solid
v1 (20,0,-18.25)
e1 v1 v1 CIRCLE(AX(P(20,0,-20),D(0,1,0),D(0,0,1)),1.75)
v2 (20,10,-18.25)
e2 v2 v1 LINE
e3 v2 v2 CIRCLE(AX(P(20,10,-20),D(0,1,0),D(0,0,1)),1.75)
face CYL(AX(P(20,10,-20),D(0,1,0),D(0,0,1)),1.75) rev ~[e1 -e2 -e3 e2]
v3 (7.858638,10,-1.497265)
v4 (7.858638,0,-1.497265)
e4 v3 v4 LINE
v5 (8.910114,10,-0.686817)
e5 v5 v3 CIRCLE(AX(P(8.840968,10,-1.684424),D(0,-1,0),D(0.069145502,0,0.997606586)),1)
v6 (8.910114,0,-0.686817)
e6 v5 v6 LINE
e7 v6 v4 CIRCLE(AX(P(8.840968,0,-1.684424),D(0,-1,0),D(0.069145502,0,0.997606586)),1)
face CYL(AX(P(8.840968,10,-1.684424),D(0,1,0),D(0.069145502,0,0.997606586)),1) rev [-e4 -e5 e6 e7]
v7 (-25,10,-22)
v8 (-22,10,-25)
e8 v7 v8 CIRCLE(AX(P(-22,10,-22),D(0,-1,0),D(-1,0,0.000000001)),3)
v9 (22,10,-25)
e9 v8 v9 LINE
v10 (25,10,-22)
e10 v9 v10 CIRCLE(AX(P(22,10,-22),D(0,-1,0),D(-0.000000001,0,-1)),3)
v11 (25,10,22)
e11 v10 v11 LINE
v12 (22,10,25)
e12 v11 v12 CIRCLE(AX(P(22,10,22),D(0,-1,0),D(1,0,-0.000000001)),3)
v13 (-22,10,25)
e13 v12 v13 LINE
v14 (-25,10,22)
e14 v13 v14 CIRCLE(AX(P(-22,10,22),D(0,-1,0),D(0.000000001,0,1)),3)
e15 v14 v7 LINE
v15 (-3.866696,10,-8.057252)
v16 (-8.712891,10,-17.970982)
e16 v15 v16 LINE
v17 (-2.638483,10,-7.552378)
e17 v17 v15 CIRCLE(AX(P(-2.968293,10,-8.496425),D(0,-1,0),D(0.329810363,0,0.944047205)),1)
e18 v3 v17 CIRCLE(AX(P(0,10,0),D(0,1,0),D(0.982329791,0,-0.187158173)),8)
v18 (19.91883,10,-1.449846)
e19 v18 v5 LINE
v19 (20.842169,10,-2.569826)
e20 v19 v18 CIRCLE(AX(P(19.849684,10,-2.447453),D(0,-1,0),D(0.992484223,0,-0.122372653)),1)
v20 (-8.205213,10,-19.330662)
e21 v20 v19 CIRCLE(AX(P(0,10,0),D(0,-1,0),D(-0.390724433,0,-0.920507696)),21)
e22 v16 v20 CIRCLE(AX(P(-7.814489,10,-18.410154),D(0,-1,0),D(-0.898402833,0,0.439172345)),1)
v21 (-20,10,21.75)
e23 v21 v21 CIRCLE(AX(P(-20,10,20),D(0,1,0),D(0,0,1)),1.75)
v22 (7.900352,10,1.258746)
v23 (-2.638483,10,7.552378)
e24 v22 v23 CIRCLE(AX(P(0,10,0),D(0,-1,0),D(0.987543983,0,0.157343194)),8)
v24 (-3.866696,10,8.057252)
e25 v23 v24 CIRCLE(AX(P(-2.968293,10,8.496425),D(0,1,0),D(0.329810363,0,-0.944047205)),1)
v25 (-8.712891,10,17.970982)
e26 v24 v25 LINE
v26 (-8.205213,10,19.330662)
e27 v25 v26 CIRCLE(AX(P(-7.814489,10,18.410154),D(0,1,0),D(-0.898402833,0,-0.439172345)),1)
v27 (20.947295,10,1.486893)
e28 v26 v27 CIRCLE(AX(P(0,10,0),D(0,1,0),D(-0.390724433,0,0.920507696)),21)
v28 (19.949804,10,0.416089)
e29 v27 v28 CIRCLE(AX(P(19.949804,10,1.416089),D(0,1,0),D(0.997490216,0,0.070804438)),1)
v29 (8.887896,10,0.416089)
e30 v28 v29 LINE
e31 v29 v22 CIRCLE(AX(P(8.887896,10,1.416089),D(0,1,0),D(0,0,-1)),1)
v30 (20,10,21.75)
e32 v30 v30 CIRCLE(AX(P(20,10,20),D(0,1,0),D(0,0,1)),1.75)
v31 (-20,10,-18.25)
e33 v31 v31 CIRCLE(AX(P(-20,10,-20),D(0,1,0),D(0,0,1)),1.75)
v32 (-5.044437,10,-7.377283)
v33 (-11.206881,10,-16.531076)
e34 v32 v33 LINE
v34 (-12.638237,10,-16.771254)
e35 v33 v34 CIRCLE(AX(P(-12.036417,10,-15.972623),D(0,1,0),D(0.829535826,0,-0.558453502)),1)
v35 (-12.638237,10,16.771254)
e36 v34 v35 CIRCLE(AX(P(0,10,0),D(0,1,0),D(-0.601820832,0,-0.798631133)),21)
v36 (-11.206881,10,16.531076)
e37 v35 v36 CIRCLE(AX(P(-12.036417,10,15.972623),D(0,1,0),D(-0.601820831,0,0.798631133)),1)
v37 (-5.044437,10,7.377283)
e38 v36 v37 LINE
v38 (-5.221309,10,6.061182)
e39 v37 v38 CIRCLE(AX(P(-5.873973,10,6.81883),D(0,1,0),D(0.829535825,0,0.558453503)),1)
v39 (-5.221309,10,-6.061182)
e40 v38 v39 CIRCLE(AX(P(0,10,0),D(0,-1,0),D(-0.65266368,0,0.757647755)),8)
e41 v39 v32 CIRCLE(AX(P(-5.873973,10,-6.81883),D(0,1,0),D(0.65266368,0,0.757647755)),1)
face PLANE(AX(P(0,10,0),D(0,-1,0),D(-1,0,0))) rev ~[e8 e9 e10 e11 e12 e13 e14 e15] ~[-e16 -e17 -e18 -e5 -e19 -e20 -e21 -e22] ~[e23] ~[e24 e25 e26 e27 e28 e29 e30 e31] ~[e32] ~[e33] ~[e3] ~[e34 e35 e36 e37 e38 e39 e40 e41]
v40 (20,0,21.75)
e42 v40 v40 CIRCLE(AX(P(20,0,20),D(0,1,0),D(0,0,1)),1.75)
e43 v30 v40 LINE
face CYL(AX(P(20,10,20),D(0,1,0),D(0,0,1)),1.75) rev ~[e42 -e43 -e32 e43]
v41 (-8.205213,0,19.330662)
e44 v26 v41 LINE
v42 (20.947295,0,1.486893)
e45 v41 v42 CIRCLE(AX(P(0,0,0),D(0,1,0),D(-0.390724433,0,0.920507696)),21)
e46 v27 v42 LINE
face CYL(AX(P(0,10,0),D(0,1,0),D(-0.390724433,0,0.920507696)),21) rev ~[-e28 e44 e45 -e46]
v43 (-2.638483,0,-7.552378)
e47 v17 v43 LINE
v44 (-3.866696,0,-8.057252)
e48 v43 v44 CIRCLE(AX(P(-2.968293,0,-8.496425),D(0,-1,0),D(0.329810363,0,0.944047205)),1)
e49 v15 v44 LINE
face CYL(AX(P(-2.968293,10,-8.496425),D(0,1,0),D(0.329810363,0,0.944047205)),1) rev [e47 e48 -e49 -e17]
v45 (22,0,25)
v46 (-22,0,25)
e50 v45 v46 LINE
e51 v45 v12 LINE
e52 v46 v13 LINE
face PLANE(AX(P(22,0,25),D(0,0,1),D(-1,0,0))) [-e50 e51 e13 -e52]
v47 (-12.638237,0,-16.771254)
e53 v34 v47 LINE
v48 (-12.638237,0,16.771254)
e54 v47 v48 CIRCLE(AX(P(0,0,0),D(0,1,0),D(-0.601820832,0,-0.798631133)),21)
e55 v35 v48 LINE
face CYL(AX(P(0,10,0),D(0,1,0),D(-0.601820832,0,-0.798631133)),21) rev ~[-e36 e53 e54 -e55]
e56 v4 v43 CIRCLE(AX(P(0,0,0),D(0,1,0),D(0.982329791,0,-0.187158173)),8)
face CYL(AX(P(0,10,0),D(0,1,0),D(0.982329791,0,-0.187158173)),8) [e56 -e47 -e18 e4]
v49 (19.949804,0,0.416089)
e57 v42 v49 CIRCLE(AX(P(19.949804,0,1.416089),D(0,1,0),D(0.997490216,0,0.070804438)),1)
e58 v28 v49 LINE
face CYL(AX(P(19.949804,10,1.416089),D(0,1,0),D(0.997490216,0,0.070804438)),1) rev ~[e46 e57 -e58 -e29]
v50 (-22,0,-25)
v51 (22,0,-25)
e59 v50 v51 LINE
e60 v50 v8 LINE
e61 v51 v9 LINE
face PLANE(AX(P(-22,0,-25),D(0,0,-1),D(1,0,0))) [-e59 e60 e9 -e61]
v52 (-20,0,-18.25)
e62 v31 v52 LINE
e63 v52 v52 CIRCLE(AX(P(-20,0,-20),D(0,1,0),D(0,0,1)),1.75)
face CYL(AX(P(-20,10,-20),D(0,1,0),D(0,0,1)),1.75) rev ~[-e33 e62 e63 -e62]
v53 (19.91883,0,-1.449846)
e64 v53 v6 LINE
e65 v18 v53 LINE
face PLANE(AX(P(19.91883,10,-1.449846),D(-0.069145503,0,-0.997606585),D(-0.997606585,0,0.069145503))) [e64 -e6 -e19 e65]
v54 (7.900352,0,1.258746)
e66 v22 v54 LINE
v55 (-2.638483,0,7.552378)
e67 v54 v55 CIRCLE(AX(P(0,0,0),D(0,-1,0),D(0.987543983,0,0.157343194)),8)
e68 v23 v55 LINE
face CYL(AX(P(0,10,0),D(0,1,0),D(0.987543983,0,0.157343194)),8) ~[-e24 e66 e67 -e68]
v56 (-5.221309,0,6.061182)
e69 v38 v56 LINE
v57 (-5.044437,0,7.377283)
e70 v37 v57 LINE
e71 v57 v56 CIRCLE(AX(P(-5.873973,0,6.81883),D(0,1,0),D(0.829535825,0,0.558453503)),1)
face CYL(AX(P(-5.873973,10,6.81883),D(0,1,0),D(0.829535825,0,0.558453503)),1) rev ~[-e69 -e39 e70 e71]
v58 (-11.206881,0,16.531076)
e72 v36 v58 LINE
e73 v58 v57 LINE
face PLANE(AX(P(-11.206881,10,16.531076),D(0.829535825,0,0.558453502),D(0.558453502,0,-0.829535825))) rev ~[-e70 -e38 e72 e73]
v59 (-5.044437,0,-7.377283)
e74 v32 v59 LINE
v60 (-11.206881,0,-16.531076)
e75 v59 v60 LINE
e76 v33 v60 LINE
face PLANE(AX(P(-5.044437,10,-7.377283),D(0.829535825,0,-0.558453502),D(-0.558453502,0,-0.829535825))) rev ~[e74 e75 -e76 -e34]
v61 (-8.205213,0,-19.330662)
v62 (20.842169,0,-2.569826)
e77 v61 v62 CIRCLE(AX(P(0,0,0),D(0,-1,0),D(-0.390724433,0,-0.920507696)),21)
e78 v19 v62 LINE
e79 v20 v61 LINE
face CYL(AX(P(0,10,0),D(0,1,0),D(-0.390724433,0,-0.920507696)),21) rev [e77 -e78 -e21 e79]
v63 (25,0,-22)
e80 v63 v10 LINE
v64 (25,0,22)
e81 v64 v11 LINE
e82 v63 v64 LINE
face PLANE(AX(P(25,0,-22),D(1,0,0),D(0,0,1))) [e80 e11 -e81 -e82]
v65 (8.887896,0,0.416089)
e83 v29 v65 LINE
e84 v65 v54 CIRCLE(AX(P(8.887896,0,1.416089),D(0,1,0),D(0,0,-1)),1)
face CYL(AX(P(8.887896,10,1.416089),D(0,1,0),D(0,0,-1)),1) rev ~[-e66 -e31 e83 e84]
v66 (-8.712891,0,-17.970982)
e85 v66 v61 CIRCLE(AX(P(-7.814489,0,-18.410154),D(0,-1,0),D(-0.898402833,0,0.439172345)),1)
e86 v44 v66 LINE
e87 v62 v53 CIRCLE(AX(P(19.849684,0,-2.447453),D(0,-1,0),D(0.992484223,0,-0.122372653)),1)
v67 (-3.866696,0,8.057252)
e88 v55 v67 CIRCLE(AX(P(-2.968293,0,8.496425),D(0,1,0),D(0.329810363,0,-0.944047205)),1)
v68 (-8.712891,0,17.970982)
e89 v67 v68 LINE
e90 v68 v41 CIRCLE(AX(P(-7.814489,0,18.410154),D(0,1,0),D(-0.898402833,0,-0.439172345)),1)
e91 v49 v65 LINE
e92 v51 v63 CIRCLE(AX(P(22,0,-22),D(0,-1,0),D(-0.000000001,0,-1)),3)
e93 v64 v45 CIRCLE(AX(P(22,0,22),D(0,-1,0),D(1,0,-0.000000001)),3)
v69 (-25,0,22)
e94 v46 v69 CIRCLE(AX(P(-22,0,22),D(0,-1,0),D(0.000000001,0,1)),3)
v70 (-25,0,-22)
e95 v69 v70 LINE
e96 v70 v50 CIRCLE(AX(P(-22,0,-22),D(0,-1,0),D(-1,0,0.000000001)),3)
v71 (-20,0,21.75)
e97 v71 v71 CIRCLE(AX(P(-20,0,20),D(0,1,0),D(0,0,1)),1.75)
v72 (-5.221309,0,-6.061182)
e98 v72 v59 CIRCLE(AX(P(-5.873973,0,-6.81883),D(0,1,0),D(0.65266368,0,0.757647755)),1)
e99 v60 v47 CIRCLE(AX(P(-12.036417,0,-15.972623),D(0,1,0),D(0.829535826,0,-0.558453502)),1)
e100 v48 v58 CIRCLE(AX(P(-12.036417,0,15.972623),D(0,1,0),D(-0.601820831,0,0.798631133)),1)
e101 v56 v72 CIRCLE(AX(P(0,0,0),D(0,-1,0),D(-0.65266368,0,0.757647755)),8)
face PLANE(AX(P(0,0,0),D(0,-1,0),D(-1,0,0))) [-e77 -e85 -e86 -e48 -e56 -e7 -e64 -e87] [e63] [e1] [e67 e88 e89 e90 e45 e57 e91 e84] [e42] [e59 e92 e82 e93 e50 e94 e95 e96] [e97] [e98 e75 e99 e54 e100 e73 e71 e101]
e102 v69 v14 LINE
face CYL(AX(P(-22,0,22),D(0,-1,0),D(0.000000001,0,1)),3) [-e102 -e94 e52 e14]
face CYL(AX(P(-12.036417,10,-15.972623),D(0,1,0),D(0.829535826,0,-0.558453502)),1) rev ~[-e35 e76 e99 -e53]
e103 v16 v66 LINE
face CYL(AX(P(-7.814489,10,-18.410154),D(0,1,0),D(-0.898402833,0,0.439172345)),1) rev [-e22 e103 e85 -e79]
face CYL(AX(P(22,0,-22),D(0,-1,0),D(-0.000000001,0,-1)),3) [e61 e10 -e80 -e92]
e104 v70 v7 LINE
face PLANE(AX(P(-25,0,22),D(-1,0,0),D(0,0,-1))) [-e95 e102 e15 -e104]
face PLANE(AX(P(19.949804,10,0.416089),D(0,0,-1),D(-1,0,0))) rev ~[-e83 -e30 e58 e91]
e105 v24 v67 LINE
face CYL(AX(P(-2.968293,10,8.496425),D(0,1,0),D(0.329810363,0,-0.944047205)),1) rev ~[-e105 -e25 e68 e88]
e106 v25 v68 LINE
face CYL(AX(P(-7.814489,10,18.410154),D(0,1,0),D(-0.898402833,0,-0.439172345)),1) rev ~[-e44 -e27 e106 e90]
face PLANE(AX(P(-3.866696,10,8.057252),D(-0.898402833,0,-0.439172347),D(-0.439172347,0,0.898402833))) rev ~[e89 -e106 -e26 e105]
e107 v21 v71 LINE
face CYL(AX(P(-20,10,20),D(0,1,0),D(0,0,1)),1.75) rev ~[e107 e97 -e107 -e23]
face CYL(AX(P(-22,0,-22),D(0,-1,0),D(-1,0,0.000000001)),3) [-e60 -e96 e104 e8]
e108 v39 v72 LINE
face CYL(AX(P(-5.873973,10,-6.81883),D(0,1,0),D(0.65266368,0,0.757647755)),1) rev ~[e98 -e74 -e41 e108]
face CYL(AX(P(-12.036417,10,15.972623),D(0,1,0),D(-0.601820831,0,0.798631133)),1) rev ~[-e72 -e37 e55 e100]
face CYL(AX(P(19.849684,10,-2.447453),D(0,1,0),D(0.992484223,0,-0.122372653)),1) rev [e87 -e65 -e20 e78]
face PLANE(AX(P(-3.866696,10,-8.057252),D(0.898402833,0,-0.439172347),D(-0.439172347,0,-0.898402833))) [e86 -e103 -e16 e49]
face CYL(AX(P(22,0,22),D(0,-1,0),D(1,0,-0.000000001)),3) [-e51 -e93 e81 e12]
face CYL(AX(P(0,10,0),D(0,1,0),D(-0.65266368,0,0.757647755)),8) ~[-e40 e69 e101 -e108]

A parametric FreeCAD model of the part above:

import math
import FreeCAD as App
import Part
import Sketcher

V = App.Vector
Q = App.Units.Quantity

doc = App.newDocument("Part")
body = doc.addObject("PartDesign::Body", "Body")

sketch1 = body.newObject("Sketcher::SketchObject", "Sketch")
sketch1.AttachmentSupport = (doc.getObject("XZ_Plane"), [""])
sketch1.MapMode = "FlatFace"
sketch1.addGeometry([
    Part.LineSegment(V(-22, 25, 0), V(22, 25, 0)),
    Part.ArcOfCircle(Part.Circle(V(22, 22, 0), V(0, 0, 1), 3), math.radians(0), math.radians(90)),
    Part.LineSegment(V(25, 22, 0), V(25, -22, 0)),
    Part.ArcOfCircle(Part.Circle(V(22, -22, 0), V(0, 0, 1), 3), math.radians(-90), math.radians(0)),
    Part.LineSegment(V(22, -25, 0), V(-22, -25, 0)),
    Part.ArcOfCircle(Part.Circle(V(-22, -22, 0), V(0, 0, 1), 3), math.radians(180), math.radians(270)),
    Part.LineSegment(V(-25, -22, 0), V(-25, 22, 0)),
    Part.ArcOfCircle(Part.Circle(V(-22, 22, 0), V(0, 0, 1), 3), math.radians(90), math.radians(180)),
], False)
sketch1.addConstraint([
    Sketcher.Constraint("Tangent", 0, 2, 1, 2),
    Sketcher.Constraint("Tangent", 1, 1, 2, 1),
    Sketcher.Constraint("Tangent", 2, 2, 3, 2),
    Sketcher.Constraint("Tangent", 3, 1, 4, 1),
    Sketcher.Constraint("Tangent", 4, 2, 5, 2),
    Sketcher.Constraint("Tangent", 5, 1, 6, 1),
    Sketcher.Constraint("Tangent", 6, 2, 7, 2),
    Sketcher.Constraint("Tangent", 7, 1, 0, 1),
    Sketcher.Constraint("Horizontal", 0),
    Sketcher.Constraint("Vertical", 2),
    Sketcher.Constraint("Horizontal", 4),
    Sketcher.Constraint("Vertical", 6),
    Sketcher.Constraint("Equal", 1, 3),
    Sketcher.Constraint("Equal", 3, 5),
    Sketcher.Constraint("Equal", 5, 7),
    Sketcher.Constraint("Symmetric", 1, 3, 5, 3, -1, 1),
    Sketcher.Constraint("Equal", 4, 2),
    Sketcher.Constraint("Radius", 1, Q("3 mm")),
    Sketcher.Constraint("DistanceX", 0, 1, 0, 2, Q("44 mm")),
])
pad1 = body.newObject("PartDesign::Pad", "Pad")
pad1.Profile = sketch1
pad1.Length = 10
pad1.Reversed = True

sketch2 = body.newObject("Sketcher::SketchObject", "Sketch001")
sketch2.AttachmentSupport = (doc.getObject("XZ_Plane"), [""])
sketch2.MapMode = "FlatFace"
sketch2.AttachmentOffset = App.Placement(V(0, 0, -10), App.Rotation())
sketch2.addGeometry([
    Part.Circle(V(-20, -20, 0), V(0, 0, 1), 1.75),
    Part.Circle(V(20, -20, 0), V(0, 0, 1), 1.75),
    Part.Circle(V(20, 20, 0), V(0, 0, 1), 1.75),
    Part.Circle(V(-20, 20, 0), V(0, 0, 1), 1.75),
    Part.LineSegment(V(19.949804, 0.416089, 0), V(8.887896, 0.416089, 0)),
    Part.ArcOfCircle(Part.Circle(V(8.887896, 1.416089, 0), V(0, 0, 1), 1), math.radians(-170.947281), math.radians(-90)),
    Part.ArcOfCircle(Part.Circle(V(0, 0, 0), V(0, 0, 1), 8), math.radians(9.052719), math.radians(109.257266)),
    Part.ArcOfCircle(Part.Circle(V(-2.968293, 8.496425, 0), V(0, 0, 1), 1), math.radians(-153.948914), math.radians(-70.742734)),
    Part.LineSegment(V(-3.866696, 8.057252, 0), V(-8.712891, 17.970982, 0)),
    Part.ArcOfCircle(Part.Circle(V(-7.814489, 18.410154, 0), V(0, 0, 1), 1), math.radians(112.999583), math.radians(206.051085)),
    Part.ArcOfCircle(Part.Circle(V(0, 0, 0), V(0, 0, 1), 21), math.radians(4.060193), math.radians(112.999583)),
    Part.ArcOfCircle(Part.Circle(V(19.949804, 1.416089, 0), V(0, 0, 1), 1), math.radians(-90), math.radians(4.060193)),
    Part.LineSegment(V(8.910114, -0.686817, 0), V(19.91883, -1.449846, 0)),
    Part.ArcOfCircle(Part.Circle(V(19.849684, -2.447453, 0), V(0, 0, 1), 1), math.radians(-7.029055), math.radians(86.035091)),
    Part.ArcOfCircle(Part.Circle(V(0, 0, 0), V(0, 0, 1), 21), math.radians(-112.999583), math.radians(-7.029055)),
    Part.ArcOfCircle(Part.Circle(V(-7.814489, -18.410154, 0), V(0, 0, 1), 1), math.radians(153.948915), math.radians(247.000417)),
    Part.LineSegment(V(-8.712891, -17.970982, 0), V(-3.866696, -8.057252, 0)),
    Part.ArcOfCircle(Part.Circle(V(-2.968293, -8.496425, 0), V(0, 0, 1), 1), math.radians(70.742734), math.radians(153.948914)),
    Part.ArcOfCircle(Part.Circle(V(0, 0, 0), V(0, 0, 1), 8), math.radians(-109.257266), math.radians(-10.786985)),
    Part.ArcOfCircle(Part.Circle(V(8.840968, -1.684424, 0), V(0, 0, 1), 1), math.radians(86.035091), math.radians(169.213015)),
    Part.LineSegment(V(-11.206881, 16.531076, 0), V(-5.044437, 7.377283, 0)),
    Part.ArcOfCircle(Part.Circle(V(-5.873973, 6.81883, 0), V(0, 0, 1), 1), math.radians(-49.257266), math.radians(33.948915)),
    Part.ArcOfCircle(Part.Circle(V(0, 0, 0), V(0, 0, 1), 8), math.radians(130.742734), math.radians(229.257266)),
    Part.ArcOfCircle(Part.Circle(V(-5.873973, -6.81883, 0), V(0, 0, 1), 1), math.radians(-33.948915), math.radians(49.257266)),
    Part.LineSegment(V(-5.044437, -7.377283, 0), V(-11.206881, -16.531076, 0)),
    Part.ArcOfCircle(Part.Circle(V(-12.036417, -15.972623, 0), V(0, 0, 1), 1), math.radians(-127.000417), math.radians(-33.948914)),
    Part.ArcOfCircle(Part.Circle(V(0, 0, 0), V(0, 0, 1), 21), math.radians(127.000417), math.radians(232.999583)),
    Part.ArcOfCircle(Part.Circle(V(-12.036417, 15.972623, 0), V(0, 0, 1), 1), math.radians(33.948914), math.radians(127.000417)),
], False)
sketch2.addConstraint([
    Sketcher.Constraint("Tangent", 4, 2, 5, 2),
    Sketcher.Constraint("Tangent", 5, 1, 6, 1),
    Sketcher.Constraint("Tangent", 6, 2, 7, 2),
    Sketcher.Constraint("Tangent", 7, 1, 8, 1),
    Sketcher.Constraint("Tangent", 8, 2, 9, 2),
    Sketcher.Constraint("Tangent", 9, 1, 10, 2),
    Sketcher.Constraint("Tangent", 10, 1, 11, 2),
    Sketcher.Constraint("Tangent", 11, 1, 4, 1),
    Sketcher.Constraint("Tangent", 12, 2, 13, 2),
    Sketcher.Constraint("Tangent", 13, 1, 14, 2),
    Sketcher.Constraint("Tangent", 14, 1, 15, 2),
    Sketcher.Constraint("Tangent", 15, 1, 16, 1),
    Sketcher.Constraint("Tangent", 16, 2, 17, 2),
    Sketcher.Constraint("Tangent", 17, 1, 18, 1),
    Sketcher.Constraint("Tangent", 18, 2, 19, 2),
    Sketcher.Constraint("Tangent", 19, 1, 12, 1),
    Sketcher.Constraint("Tangent", 20, 2, 21, 2),
    Sketcher.Constraint("Tangent", 21, 1, 22, 1),
    Sketcher.Constraint("Tangent", 22, 2, 23, 2),
    Sketcher.Constraint("Tangent", 23, 1, 24, 1),
    Sketcher.Constraint("Tangent", 24, 2, 25, 2),
    Sketcher.Constraint("Tangent", 25, 1, 26, 2),
    Sketcher.Constraint("Tangent", 26, 1, 27, 2),
    Sketcher.Constraint("Tangent", 27, 1, 20, 1),
    Sketcher.Constraint("Horizontal", 4),
    Sketcher.Constraint("Coincident", 6, 3, -1, 1),
    Sketcher.Constraint("Coincident", 10, 3, -1, 1),
    Sketcher.Constraint("Coincident", 14, 3, -1, 1),
    Sketcher.Constraint("Coincident", 18, 3, -1, 1),
    Sketcher.Constraint("Coincident", 22, 3, -1, 1),
    Sketcher.Constraint("Coincident", 26, 3, -1, 1),
    Sketcher.Constraint("Equal", 0, 1),
    Sketcher.Constraint("Equal", 1, 2),
    Sketcher.Constraint("Equal", 2, 3),
    Sketcher.Constraint("Equal", 5, 7),
    Sketcher.Constraint("Equal", 7, 9),
    Sketcher.Constraint("Equal", 9, 11),
    Sketcher.Constraint("Equal", 11, 13),
    Sketcher.Constraint("Equal", 10, 14),
    Sketcher.Constraint("Equal", 13, 15),
    Sketcher.Constraint("Equal", 15, 17),
    Sketcher.Constraint("Equal", 6, 18),
    Sketcher.Constraint("Equal", 17, 19),
    Sketcher.Constraint("Equal", 19, 21),
    Sketcher.Constraint("Equal", 18, 22),
    Sketcher.Constraint("Equal", 21, 23),
    Sketcher.Constraint("Equal", 23, 25),
    Sketcher.Constraint("Equal", 14, 26),
    Sketcher.Constraint("Equal", 25, 27),
    Sketcher.Constraint("Symmetric", 0, 3, 2, 3, -1, 1),
    Sketcher.Constraint("Symmetric", 1, 3, 3, 3, -1, 1),
    Sketcher.Constraint("Symmetric", 0, 3, 1, 3, -2),
    Sketcher.Constraint("Symmetric", 8, 2, 15, 1, -1),
    Sketcher.Constraint("Symmetric", 20, 2, 23, 1, -1),
    Sketcher.Constraint("Equal", 16, 20),
    Sketcher.Constraint("Radius", 5, Q("1 mm")),
    Sketcher.Constraint("Radius", 6, Q("8 mm")),
    Sketcher.Constraint("Radius", 10, Q("21 mm")),
    Sketcher.Constraint("Diameter", 0, Q("3.5 mm")),
    Sketcher.Constraint("DistanceX", 0, 3, -1, 1, Q("20 mm")),
    Sketcher.Constraint("DistanceY", 0, 3, -1, 1, Q("20 mm")),
    Sketcher.Constraint("DistanceX", 4, 2, 4, 1, Q("11.061908 mm")),
    Sketcher.Constraint("DistanceX", 8, 2, 7, 3, Q("5.744598 mm")),
    Sketcher.Constraint("DistanceY", 21, 1, 20, 2, Q("1.316101 mm")),
    Sketcher.Constraint("DistanceY", 15, 3, 25, 1, Q("1.6389 mm")),
    Sketcher.Constraint("DistanceX", -1, 1, 19, 3, Q("8.840968 mm")),
    Sketcher.Constraint("DistanceX", -1, 1, 12, 2, Q("19.91883 mm")),
])
pocket1 = body.newObject("PartDesign::Pocket", "Pocket")
pocket1.Profile = sketch2
pocket1.Length = 10
pocket1.Reversed = True

doc.recompute()
